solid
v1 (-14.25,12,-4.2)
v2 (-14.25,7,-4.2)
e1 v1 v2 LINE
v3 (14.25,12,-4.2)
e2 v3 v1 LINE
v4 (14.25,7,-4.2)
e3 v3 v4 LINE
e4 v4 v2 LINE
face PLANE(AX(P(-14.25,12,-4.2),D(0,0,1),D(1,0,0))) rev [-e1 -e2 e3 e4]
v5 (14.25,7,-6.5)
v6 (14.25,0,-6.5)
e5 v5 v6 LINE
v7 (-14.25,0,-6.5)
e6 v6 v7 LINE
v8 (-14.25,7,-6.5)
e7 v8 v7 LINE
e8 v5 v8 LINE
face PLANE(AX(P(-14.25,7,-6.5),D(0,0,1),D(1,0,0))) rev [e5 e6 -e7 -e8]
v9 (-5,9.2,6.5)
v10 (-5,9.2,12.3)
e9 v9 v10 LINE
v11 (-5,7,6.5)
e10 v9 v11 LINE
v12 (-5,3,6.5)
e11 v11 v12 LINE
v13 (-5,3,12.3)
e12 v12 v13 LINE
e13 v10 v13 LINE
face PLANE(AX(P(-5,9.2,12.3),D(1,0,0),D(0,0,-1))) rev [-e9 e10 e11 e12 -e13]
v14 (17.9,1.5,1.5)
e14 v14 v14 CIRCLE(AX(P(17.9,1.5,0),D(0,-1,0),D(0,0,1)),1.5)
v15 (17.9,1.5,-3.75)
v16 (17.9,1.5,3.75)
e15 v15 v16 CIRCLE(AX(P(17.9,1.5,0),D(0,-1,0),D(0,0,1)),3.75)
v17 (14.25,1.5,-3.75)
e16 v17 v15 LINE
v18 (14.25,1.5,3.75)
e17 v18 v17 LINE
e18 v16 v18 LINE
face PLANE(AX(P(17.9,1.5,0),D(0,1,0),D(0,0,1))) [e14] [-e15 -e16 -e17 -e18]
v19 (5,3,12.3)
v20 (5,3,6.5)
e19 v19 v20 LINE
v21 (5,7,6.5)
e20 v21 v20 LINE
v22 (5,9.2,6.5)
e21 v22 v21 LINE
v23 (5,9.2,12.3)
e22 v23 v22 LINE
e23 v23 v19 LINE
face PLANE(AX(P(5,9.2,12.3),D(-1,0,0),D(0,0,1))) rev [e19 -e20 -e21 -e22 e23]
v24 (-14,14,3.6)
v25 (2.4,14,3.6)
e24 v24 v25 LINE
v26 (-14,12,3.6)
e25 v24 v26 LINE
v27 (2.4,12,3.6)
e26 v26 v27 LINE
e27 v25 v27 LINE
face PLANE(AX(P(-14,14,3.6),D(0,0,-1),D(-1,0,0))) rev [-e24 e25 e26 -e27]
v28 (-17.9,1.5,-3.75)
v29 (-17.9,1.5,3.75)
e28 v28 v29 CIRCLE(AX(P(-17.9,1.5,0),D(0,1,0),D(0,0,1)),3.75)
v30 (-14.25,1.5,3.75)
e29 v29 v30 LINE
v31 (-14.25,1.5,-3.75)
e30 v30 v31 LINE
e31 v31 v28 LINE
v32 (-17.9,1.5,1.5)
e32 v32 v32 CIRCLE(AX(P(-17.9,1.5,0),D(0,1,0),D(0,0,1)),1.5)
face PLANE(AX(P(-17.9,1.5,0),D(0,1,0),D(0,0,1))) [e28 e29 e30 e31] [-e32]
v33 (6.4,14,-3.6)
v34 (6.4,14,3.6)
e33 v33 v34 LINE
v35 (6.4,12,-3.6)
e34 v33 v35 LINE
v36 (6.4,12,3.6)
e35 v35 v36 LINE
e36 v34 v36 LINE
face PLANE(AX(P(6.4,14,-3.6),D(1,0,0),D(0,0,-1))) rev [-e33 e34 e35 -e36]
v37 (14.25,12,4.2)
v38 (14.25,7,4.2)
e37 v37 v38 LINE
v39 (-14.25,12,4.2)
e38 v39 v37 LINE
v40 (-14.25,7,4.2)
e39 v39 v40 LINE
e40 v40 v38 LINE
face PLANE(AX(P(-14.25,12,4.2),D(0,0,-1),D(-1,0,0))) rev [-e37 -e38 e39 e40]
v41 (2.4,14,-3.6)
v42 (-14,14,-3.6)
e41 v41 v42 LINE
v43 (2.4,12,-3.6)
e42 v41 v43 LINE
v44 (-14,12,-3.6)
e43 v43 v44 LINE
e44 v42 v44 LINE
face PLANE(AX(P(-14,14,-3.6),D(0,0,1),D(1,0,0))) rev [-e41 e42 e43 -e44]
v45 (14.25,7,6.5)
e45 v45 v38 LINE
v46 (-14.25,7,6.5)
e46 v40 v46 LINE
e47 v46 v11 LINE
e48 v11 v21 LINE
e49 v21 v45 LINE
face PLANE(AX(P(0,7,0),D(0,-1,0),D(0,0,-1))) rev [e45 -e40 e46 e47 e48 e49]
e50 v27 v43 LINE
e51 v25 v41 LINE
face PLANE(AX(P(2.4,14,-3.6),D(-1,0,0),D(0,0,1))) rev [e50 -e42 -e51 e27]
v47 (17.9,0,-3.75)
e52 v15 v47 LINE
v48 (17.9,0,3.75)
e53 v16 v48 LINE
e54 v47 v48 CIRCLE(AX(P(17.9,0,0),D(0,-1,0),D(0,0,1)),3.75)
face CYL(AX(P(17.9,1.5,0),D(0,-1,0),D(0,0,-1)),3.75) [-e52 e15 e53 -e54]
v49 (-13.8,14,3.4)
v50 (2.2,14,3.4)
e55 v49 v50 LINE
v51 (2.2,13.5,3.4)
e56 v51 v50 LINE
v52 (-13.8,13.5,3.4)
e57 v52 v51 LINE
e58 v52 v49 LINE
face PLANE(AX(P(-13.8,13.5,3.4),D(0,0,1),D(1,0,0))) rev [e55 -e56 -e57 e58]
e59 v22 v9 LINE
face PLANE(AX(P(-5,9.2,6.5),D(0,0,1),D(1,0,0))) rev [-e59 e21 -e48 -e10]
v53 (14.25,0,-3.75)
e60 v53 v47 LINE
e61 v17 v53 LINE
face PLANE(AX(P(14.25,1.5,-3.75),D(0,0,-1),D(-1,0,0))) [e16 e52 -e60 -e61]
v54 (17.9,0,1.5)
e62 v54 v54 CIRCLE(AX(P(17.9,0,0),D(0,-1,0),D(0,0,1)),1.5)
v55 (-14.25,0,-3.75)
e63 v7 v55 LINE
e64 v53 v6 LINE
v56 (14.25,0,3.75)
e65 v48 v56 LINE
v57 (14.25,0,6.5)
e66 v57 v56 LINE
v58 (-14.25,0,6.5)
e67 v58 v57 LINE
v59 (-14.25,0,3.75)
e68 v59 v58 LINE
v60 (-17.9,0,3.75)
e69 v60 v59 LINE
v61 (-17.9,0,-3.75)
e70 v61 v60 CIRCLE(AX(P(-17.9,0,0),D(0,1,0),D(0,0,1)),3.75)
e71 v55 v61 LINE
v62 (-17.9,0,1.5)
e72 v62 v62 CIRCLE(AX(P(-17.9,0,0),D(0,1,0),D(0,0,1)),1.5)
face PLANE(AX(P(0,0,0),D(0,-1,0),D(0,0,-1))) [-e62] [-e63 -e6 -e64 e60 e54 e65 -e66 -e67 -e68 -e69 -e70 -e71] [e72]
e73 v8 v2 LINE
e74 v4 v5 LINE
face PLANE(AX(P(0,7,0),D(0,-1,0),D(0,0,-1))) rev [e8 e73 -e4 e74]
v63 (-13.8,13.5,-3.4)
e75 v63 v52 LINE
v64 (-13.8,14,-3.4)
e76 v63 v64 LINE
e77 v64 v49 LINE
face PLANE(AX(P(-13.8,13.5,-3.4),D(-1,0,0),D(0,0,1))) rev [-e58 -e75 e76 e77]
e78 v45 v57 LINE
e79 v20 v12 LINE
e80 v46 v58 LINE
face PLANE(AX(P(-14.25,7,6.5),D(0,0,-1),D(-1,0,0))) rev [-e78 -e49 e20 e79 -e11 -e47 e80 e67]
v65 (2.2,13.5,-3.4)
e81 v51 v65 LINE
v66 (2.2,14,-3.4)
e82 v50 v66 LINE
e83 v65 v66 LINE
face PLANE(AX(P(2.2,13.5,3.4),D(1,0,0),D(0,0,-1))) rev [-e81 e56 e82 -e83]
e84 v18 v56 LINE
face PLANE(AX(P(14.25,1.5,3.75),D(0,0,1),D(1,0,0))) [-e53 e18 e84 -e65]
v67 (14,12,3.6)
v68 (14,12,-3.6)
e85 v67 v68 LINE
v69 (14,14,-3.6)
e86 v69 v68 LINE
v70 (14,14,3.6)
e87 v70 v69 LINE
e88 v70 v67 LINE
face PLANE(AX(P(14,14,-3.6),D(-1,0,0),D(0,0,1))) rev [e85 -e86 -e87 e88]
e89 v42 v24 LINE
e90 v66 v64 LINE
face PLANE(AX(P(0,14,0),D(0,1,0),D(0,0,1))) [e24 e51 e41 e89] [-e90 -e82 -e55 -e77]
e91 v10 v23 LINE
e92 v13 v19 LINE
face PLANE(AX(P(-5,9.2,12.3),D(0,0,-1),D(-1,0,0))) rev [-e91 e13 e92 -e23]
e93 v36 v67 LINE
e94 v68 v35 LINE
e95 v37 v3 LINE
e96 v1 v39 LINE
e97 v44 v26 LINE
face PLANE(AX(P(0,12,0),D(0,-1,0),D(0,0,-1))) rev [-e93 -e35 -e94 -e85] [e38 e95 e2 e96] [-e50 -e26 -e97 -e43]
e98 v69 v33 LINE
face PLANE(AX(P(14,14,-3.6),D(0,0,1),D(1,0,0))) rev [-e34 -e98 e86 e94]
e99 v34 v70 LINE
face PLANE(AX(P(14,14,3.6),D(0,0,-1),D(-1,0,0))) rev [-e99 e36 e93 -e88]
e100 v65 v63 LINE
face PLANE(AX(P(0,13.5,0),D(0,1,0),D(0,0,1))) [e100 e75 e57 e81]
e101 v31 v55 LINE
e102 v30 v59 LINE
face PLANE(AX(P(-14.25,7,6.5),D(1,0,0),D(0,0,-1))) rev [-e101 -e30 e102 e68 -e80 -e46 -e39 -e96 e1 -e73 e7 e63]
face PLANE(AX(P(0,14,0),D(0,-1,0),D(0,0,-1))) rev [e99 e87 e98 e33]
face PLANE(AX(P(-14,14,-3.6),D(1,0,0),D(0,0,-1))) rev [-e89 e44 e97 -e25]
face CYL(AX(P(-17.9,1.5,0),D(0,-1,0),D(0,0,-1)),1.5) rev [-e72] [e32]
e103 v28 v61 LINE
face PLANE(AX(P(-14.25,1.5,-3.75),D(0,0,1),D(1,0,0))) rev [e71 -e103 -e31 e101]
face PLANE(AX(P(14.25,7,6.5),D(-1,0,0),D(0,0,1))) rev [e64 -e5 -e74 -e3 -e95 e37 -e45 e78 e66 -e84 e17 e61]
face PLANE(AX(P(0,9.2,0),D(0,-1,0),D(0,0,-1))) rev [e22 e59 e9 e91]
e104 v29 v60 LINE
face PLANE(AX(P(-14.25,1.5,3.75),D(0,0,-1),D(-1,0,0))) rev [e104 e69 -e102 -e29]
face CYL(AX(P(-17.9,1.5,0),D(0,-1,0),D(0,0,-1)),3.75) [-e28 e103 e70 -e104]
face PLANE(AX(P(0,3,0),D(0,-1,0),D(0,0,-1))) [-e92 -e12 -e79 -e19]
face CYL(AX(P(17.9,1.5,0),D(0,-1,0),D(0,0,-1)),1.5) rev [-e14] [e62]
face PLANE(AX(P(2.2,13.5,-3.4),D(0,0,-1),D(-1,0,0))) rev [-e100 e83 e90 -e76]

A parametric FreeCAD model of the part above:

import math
import FreeCAD as App
import Part
import Sketcher
Q = App.Units.Quantity

doc = App.newDocument("Part")
body = doc.addObject("PartDesign::Body", "Body")

# Sketch on XZ plane
sketch1 = doc.addObject("Sketcher::SketchObject", "Sketch")
body.addObject(sketch1)
sketch1.AttachmentSupport = (doc.XZ_Plane, [""])
sketch1.MapMode = "FlatFace"
sketch1.addGeometry([
    Part.LineSegment(App.Vector(-14, -6, 0), App.Vector(-14, 6, 0)),
    Part.LineSegment(App.Vector(-14, 6, 0), App.Vector(14, 6, 0)),
    Part.LineSegment(App.Vector(14, 6, 0), App.Vector(14, -6, 0)),
    Part.LineSegment(App.Vector(14, -6, 0), App.Vector(-14, -6, 0)),
], False)
sketch1.addConstraint([
    Sketcher.Constraint("Coincident", 0, 2, 1, 1),
    Sketcher.Constraint("Coincident", 1, 2, 2, 1),
    Sketcher.Constraint("Coincident", 2, 2, 3, 1),
    Sketcher.Constraint("Coincident", 3, 2, 0, 1),
    Sketcher.Constraint("Vertical", 0),
    Sketcher.Constraint("Horizontal", 1),
    Sketcher.Constraint("Vertical", 2),
    Sketcher.Constraint("Horizontal", 3),
    Sketcher.Constraint("Symmetric", 0, 2, 2, 2, -1, 1),
    Sketcher.Constraint("DistanceY", 0, 1, 0, 2, Q("13 mm")),
    Sketcher.Constraint("DistanceX", 1, 1, 1, 2, Q("28.5 mm")),
])
pad1 = doc.addObject("PartDesign::Pad", "Pad")
body.addObject(pad1)
pad1.Profile = sketch1
pad1.Length = 7
pad1.Reversed = True

# Sketch on XZ plane
sketch2 = doc.addObject("Sketcher::SketchObject", "Sketch001")
body.addObject(sketch2)
sketch2.AttachmentSupport = (doc.XZ_Plane, [""])
sketch2.MapMode = "FlatFace"
sketch2.AttachmentOffset = App.Placement(App.Vector(0, 0, -7), App.Rotation())
sketch2.addGeometry([
    Part.LineSegment(App.Vector(-14, -4, 0), App.Vector(-14, 4, 0)),
    Part.LineSegment(App.Vector(-14, 4, 0), App.Vector(14, 4, 0)),
    Part.LineSegment(App.Vector(14, 4, 0), App.Vector(14, -4, 0)),
    Part.LineSegment(App.Vector(14, -4, 0), App.Vector(-14, -4, 0)),
], False)
sketch2.addConstraint([
    Sketcher.Constraint("Coincident", 0, 2, 1, 1),
    Sketcher.Constraint("Coincident", 1, 2, 2, 1),
    Sketcher.Constraint("Coincident", 2, 2, 3, 1),
    Sketcher.Constraint("Coincident", 3, 2, 0, 1),
    Sketcher.Constraint("Vertical", 0),
    Sketcher.Constraint("Horizontal", 1),
    Sketcher.Constraint("Vertical", 2),
    Sketcher.Constraint("Horizontal", 3),
    Sketcher.Constraint("Symmetric", 0, 2, 2, 2, -1, 1),
    Sketcher.Constraint("DistanceX", 1, 1, 1, 2, Q("28.5 mm")),
    Sketcher.Constraint("DistanceY", 0, 1, 0, 2, Q("8.4 mm")),
])
pad2 = doc.addObject("PartDesign::Pad", "Pad001")
body.addObject(pad2)
pad2.Profile = sketch2
pad2.Length = 5
pad2.Reversed = True

# Sketch on XZ plane
sketch3 = doc.addObject("Sketcher::SketchObject", "Sketch002")
body.addObject(sketch3)
sketch3.AttachmentSupport = (doc.XZ_Plane, [""])
sketch3.MapMode = "FlatFace"
sketch3.AttachmentOffset = App.Placement(App.Vector(0, 0, -12), App.Rotation())
sketch3.addGeometry([
    Part.LineSegment(App.Vector(-14, -4, 0), App.Vector(-14, 4, 0)),  # 0
    Part.LineSegment(App.Vector(-14, 4, 0), App.Vector(2, 4, 0)),  # 1
    Part.LineSegment(App.Vector(2, 4, 0), App.Vector(2, -4, 0)),  # 2
    Part.LineSegment(App.Vector(2, -4, 0), App.Vector(-14, -4, 0)),  # 3
    Part.LineSegment(App.Vector(6, -4, 0), App.Vector(6, 4, 0)),  # 4
    Part.LineSegment(App.Vector(6, 4, 0), App.Vector(14, 4, 0)),  # 5
    Part.LineSegment(App.Vector(14, 4, 0), App.Vector(14, -4, 0)),  # 6
    Part.LineSegment(App.Vector(14, -4, 0), App.Vector(6, -4, 0)),  # 7
], False)
sketch3.addConstraint([
    Sketcher.Constraint("Coincident", 0, 2, 1, 1),
    Sketcher.Constraint("Coincident", 1, 2, 2, 1),
    Sketcher.Constraint("Coincident", 2, 2, 3, 1),
    Sketcher.Constraint("Coincident", 3, 2, 0, 1),
    Sketcher.Constraint("Coincident", 4, 2, 5, 1),
    Sketcher.Constraint("Coincident", 5, 2, 6, 1),
    Sketcher.Constraint("Coincident", 6, 2, 7, 1),
    Sketcher.Constraint("Coincident", 7, 2, 4, 1),
    Sketcher.Constraint("Vertical", 0),
    Sketcher.Constraint("Horizontal", 1),
    Sketcher.Constraint("Vertical", 2),
    Sketcher.Constraint("Horizontal", 3),
    Sketcher.Constraint("Vertical", 4),
    Sketcher.Constraint("Horizontal", 5),
    Sketcher.Constraint("Vertical", 6),
    Sketcher.Constraint("Horizontal", 7),
    Sketcher.Constraint("Symmetric", 3, 2, 5, 2, -1, 1),
    Sketcher.Constraint("Horizontal", 1, 2, 4, 2),
    Sketcher.Constraint("Horizontal", 3, 2, 6, 2),
    Sketcher.Constraint("DistanceX", 1, 1, 1, 2, Q("16.4 mm")),
    Sketcher.Constraint("DistanceX", 5, 1, 5, 2, Q("7.6 mm")),
    Sketcher.Constraint("DistanceY", 0, 1, 0, 2, Q("7.2 mm")),
    Sketcher.Constraint("DistanceX", 0, 2, -1, 1, Q("14 mm")),
])
pad3 = doc.addObject("PartDesign::Pad", "Pad002")
body.addObject(pad3)
pad3.Profile = sketch3
pad3.Length = 2
pad3.Reversed = True

# Sketch on XZ plane
sketch4 = doc.addObject("Sketcher::SketchObject", "Sketch003")
body.addObject(sketch4)
sketch4.AttachmentSupport = (doc.XZ_Plane, [""])
sketch4.MapMode = "FlatFace"
sketch4.AttachmentOffset = App.Placement(App.Vector(0, 0, -14), App.Rotation())
sketch4.addGeometry([
    Part.LineSegment(App.Vector(-14, -3, 0), App.Vector(-14, 3, 0)),
    Part.LineSegment(App.Vector(-14, 3, 0), App.Vector(2, 3, 0)),
    Part.LineSegment(App.Vector(2, 3, 0), App.Vector(2, -3, 0)),
    Part.LineSegment(App.Vector(2, -3, 0), App.Vector(-14, -3, 0)),
], False)
sketch4.addConstraint([
    Sketcher.Constraint("Coincident", 0, 2, 1, 1),
    Sketcher.Constraint("Coincident", 1, 2, 2, 1),
    Sketcher.Constraint("Coincident", 2, 2, 3, 1),
    Sketcher.Constraint("Coincident", 3, 2, 0, 1),
    Sketcher.Constraint("Vertical", 0),
    Sketcher.Constraint("Horizontal", 1),
    Sketcher.Constraint("Vertical", 2),
    Sketcher.Constraint("Horizontal", 3),
    Sketcher.Constraint("DistanceX", 1, 1, 1, 2, Q("16 mm")),
    Sketcher.Constraint("DistanceY", 0, 1, 0, 2, Q("6.8 mm")),
    Sketcher.Constraint("DistanceX", 0, 2, -1, 1, Q("13.8 mm")),
    Sketcher.Constraint("DistanceY", -1, 1, 0, 2, Q("3.4 mm")),
])
pocket1 = doc.addObject("PartDesign::Pocket", "Pocket")
body.addObject(pocket1)
pocket1.Profile = sketch4
pocket1.Length = 0.5
pocket1.Reversed = True

# Sketch on XZ plane
sketch5 = doc.addObject("Sketcher::SketchObject", "Sketch004")
body.addObject(sketch5)
sketch5.AttachmentSupport = (doc.XZ_Plane, [""])
sketch5.MapMode = "FlatFace"
sketch5.addGeometry([
    Part.LineSegment(App.Vector(-14.2, 3.8, 0), App.Vector(-14.2, -3.8, 0)),  # 0
    Part.LineSegment(App.Vector(-14.2, -3.8, 0), App.Vector(-17.9, -3.8, 0)),  # 1
    Part.ArcOfCircle(Part.Circle(App.Vector(-17.9, 0, 0), App.Vector(0, 0, 1), 3.8), math.radians(90), math.radians(270)),  # 2
    Part.LineSegment(App.Vector(-17.9, 3.8, 0), App.Vector(-14.2, 3.8, 0)),  # 3
    Part.Circle(App.Vector(-17.9, 0, 0), App.Vector(0, 0, 1), 1.5),  # 4
], False)
sketch5.addConstraint([
    Sketcher.Constraint("Coincident", 0, 2, 1, 1),
    Sketcher.Constraint("Tangent", 1, 2, 2, 2),
    Sketcher.Constraint("Tangent", 2, 1, 3, 1),
    Sketcher.Constraint("Coincident", 3, 2, 0, 1),
    Sketcher.Constraint("Vertical", 0),
    Sketcher.Constraint("Horizontal", 1),
    Sketcher.Constraint("Horizontal", 3),
    Sketcher.Constraint("Coincident", 4, 3, 2, 3),
    Sketcher.Constraint("PointOnObject", 2, 3, -1),
    Sketcher.Constraint("Diameter", 4, Q("3 mm")),
    Sketcher.Constraint("Radius", 2, Q("3.75 mm")),
    Sketcher.Constraint("DistanceX", 1, 2, 1, 1, Q("3.65 mm")),
    Sketcher.Constraint("DistanceX", 2, 3, -1, 1, Q("17.9 mm")),
])
pad4 = doc.addObject("PartDesign::Pad", "Pad003")
body.addObject(pad4)
pad4.Profile = sketch5
pad4.Length = 1.5
pad4.Reversed = True
doc.recompute()

mirrored = doc.addObject("PartDesign::Mirrored", "Mirrored")
body.addObject(mirrored)
mirrored.Originals = [pad4]
mirrored.MirrorPlane = (doc.YZ_Plane, [""])
body.Tip = mirrored

# Sketch on XZ plane
sketch6 = doc.addObject("Sketcher::SketchObject", "Sketch005")
body.addObject(sketch6)
sketch6.AttachmentSupport = (doc.XZ_Plane, [""])
sketch6.MapMode = "FlatFace"
sketch6.AttachmentOffset = App.Placement(App.Vector(0, 0, -3), App.Rotation())
sketch6.addGeometry([
    Part.LineSegment(App.Vector(-5, 6, 0), App.Vector(-5, 12, 0)),
    Part.LineSegment(App.Vector(-5, 12, 0), App.Vector(5, 12, 0)),
    Part.LineSegment(App.Vector(5, 12, 0), App.Vector(5, 6, 0)),
    Part.LineSegment(App.Vector(5, 6, 0), App.Vector(-5, 6, 0)),
], False)
sketch6.addConstraint([
    Sketcher.Constraint("Coincident", 0, 2, 1, 1),
    Sketcher.Constraint("Coincident", 1, 2, 2, 1),
    Sketcher.Constraint("Coincident", 2, 2, 3, 1),
    Sketcher.Constraint("Coincident", 3, 2, 0, 1),
    Sketcher.Constraint("Vertical", 0),
    Sketcher.Constraint("Horizontal", 1),
    Sketcher.Constraint("Vertical", 2),
    Sketcher.Constraint("Horizontal", 3),
    Sketcher.Constraint("DistanceX", 1, 1, 1, 2, Q("10 mm")),
    Sketcher.Constraint("DistanceY", 0, 1, 0, 2, Q("5.8 mm")),
    Sketcher.Constraint("DistanceX", 0, 2, -1, 1, Q("5 mm")),
    Sketcher.Constraint("DistanceY", -1, 1, 0, 2, Q("12.3 mm")),
])
pad5 = doc.addObject("PartDesign::Pad", "Pad004")
body.addObject(pad5)
pad5.Profile = sketch6
pad5.Length = 6.2
pad5.Reversed = True

doc.recompute()
